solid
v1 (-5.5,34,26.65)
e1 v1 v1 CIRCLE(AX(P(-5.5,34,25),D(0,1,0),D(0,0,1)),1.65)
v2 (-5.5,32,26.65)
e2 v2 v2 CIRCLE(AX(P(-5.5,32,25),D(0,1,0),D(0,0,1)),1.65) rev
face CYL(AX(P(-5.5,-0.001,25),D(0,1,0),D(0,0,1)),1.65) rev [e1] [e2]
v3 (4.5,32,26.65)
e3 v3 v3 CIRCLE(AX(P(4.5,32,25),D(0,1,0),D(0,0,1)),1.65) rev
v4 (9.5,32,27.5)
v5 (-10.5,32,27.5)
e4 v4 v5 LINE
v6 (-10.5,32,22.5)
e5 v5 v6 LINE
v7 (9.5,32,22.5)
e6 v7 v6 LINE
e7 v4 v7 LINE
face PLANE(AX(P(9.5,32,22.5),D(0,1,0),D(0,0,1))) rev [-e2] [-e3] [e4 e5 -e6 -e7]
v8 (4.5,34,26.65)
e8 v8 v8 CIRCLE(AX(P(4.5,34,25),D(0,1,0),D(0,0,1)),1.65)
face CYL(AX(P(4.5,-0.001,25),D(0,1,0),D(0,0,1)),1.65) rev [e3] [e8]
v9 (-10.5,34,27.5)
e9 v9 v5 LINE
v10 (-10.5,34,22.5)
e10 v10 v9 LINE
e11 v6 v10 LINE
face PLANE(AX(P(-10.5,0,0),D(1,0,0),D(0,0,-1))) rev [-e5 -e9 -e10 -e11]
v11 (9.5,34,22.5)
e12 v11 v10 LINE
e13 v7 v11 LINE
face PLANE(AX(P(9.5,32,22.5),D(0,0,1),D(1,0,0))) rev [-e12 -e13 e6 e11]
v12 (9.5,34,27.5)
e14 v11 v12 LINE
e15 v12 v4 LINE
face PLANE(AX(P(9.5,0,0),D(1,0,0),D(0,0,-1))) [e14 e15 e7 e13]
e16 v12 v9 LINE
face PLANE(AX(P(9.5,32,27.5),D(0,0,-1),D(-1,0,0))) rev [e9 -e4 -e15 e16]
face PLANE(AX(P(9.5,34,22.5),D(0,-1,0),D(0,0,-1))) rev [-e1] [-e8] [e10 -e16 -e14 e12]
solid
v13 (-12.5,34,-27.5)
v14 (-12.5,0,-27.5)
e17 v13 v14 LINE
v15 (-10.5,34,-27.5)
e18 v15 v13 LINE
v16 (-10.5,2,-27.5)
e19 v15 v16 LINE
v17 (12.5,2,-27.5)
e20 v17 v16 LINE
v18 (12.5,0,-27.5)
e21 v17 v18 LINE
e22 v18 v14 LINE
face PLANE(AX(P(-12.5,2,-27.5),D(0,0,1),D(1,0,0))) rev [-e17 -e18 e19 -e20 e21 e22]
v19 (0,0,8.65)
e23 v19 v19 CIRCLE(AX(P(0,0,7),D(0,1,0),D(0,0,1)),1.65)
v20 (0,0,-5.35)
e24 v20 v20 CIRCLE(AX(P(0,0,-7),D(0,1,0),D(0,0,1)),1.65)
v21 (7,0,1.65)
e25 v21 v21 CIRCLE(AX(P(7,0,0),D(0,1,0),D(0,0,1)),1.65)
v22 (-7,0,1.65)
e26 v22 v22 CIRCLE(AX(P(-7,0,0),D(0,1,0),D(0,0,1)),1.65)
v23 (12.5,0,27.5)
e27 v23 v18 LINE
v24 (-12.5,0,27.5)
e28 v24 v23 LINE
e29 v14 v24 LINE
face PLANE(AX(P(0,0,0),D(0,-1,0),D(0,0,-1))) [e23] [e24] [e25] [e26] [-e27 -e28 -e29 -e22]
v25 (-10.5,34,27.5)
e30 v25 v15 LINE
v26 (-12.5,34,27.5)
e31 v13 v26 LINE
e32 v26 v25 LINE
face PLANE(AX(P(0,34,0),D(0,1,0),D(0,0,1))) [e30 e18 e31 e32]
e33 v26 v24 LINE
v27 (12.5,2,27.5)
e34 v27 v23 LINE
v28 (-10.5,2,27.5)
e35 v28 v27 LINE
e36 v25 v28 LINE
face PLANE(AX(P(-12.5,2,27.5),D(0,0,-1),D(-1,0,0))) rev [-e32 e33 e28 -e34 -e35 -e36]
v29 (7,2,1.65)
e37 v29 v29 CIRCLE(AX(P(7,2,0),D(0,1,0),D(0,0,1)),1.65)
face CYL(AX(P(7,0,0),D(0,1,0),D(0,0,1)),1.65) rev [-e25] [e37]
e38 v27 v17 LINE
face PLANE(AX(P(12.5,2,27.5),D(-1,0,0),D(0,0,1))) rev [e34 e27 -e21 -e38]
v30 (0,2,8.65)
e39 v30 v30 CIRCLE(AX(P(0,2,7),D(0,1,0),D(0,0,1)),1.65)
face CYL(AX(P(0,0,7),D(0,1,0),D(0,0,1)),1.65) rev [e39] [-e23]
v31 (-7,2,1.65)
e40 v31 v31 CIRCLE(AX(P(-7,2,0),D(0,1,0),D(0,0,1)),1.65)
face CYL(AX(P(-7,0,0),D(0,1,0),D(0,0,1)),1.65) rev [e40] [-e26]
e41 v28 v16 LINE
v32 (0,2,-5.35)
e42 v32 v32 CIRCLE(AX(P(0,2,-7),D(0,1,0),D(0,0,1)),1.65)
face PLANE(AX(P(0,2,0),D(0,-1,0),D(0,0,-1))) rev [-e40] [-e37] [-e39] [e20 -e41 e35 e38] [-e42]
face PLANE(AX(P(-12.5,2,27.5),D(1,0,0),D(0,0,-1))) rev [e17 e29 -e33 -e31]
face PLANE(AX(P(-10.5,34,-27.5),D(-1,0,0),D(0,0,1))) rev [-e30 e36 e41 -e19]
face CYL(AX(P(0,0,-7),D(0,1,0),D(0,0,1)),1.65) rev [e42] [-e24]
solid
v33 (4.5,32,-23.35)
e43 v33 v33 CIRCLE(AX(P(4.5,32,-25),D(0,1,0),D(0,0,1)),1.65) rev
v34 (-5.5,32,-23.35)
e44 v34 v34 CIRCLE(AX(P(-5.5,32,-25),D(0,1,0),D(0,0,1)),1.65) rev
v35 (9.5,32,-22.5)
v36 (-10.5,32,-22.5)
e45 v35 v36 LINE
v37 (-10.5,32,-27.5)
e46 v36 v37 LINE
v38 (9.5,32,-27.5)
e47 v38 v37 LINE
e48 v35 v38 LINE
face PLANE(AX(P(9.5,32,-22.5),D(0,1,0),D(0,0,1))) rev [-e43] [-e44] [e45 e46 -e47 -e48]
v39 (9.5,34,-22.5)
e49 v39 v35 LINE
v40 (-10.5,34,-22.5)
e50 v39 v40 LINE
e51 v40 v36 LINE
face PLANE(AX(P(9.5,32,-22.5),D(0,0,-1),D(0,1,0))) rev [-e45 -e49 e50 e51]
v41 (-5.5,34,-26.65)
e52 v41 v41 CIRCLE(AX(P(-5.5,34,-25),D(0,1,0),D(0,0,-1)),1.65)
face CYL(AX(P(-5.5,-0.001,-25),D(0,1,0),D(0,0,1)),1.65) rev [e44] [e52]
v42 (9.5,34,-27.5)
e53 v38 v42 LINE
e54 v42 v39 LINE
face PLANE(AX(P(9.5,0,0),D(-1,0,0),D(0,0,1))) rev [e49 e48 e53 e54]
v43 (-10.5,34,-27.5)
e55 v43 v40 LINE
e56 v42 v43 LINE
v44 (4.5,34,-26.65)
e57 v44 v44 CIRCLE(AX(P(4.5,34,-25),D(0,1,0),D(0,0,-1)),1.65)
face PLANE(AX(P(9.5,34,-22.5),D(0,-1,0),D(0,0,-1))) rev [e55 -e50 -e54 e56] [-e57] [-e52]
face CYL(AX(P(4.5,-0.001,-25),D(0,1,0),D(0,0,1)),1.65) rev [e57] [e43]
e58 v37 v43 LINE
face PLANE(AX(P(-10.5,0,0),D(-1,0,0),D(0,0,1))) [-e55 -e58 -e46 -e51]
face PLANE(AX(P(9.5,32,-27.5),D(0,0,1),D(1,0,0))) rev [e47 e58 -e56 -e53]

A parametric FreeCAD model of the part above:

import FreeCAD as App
import Part
import Sketcher

doc = App.newDocument("Part")
body = doc.addObject("PartDesign::Body", "Body")

# Sketch on XZ plane
sketch1 = body.newObject("Sketcher::SketchObject", "Sketch")
sketch1.AttachmentSupport = (doc.getObject("XZ_Plane"), [""])
sketch1.MapMode = "FlatFace"
sketch1.addGeometry([
    Part.LineSegment(App.Vector(-12, -28, 0), App.Vector(-12, 28, 0)),
    Part.LineSegment(App.Vector(-12, 28, 0), App.Vector(12, 28, 0)),
    Part.LineSegment(App.Vector(12, 28, 0), App.Vector(12, -28, 0)),
    Part.LineSegment(App.Vector(12, -28, 0), App.Vector(-12, -28, 0)),
], False)
sketch1.addConstraint([
    Sketcher.Constraint("Coincident", 0, 2, 1, 1),
    Sketcher.Constraint("Coincident", 1, 2, 2, 1),
    Sketcher.Constraint("Coincident", 2, 2, 3, 1),
    Sketcher.Constraint("Coincident", 3, 2, 0, 1),
    Sketcher.Constraint("Vertical", 0),
    Sketcher.Constraint("Horizontal", 1),
    Sketcher.Constraint("Vertical", 2),
    Sketcher.Constraint("Horizontal", 3),
    Sketcher.Constraint("Symmetric", 0, 2, 2, 2, -1, 1),
    Sketcher.Constraint("DistanceX", 1, 1, 1, 2, 25.0),
    Sketcher.Constraint("DistanceY", 0, 1, 0, 2, 55.0),
])
pad1 = body.newObject("PartDesign::Pad", "Pad")
pad1.Profile = sketch1
pad1.Length = 2
pad1.Reversed = True

# Sketch on XZ plane
sketch2 = body.newObject("Sketcher::SketchObject", "Sketch001")
sketch2.AttachmentSupport = (doc.getObject("XZ_Plane"), [""])
sketch2.MapMode = "FlatFace"
sketch2.AttachmentOffset = App.Placement(App.Vector(0, 0, -2), App.Rotation())
sketch2.addGeometry([
    Part.Circle(App.Vector(7, 0, 0), App.Vector(0, 0, 1), 1.6),
    Part.Circle(App.Vector(0, -7, 0), App.Vector(0, 0, 1), 1.6),
    Part.Circle(App.Vector(-7, 0, 0), App.Vector(0, 0, 1), 1.6),
    Part.Circle(App.Vector(0, 7, 0), App.Vector(0, 0, 1), 1.6),
], False)
sketch2.addConstraint([
    Sketcher.Constraint("Equal", 0, 1),
    Sketcher.Constraint("Equal", 1, 2),
    Sketcher.Constraint("Equal", 2, 3),
    Sketcher.Constraint("Symmetric", 0, 3, 2, 3, -1, 1),
    Sketcher.Constraint("Symmetric", 1, 3, 3, 3, -1, 1),
    Sketcher.Constraint("PointOnObject", 0, 3, -1),
    Sketcher.Constraint("PointOnObject", 1, 3, -2),
    Sketcher.Constraint("Diameter", 0, 3.3),
    Sketcher.Constraint("DistanceX", -1, 1, 0, 3, 7.0),
    Sketcher.Constraint("DistanceY", 1, 3, -1, 1, 7.0),
])
pocket1 = body.newObject("PartDesign::Pocket", "Pocket")
pocket1.Profile = sketch2
pocket1.Length = 2
pocket1.Reversed = True

# Sketch on XZ plane
sketch3 = body.newObject("Sketcher::SketchObject", "Sketch002")
sketch3.AttachmentSupport = (doc.getObject("XZ_Plane"), [""])
sketch3.MapMode = "FlatFace"
sketch3.AttachmentOffset = App.Placement(App.Vector(0, 0, -2), App.Rotation())
sketch3.addGeometry([
    Part.LineSegment(App.Vector(-12.5, -27.5, 0), App.Vector(-12.5, 27.5, 0)),
    Part.LineSegment(App.Vector(-12.5, 27.5, 0), App.Vector(-10.5, 27.5, 0)),
    Part.LineSegment(App.Vector(-10.5, 27.5, 0), App.Vector(-10.5, -27.5, 0)),
    Part.LineSegment(App.Vector(-10.5, -27.5, 0), App.Vector(-12.5, -27.5, 0)),
], False)
sketch3.addConstraint([
    Sketcher.Constraint("Coincident", 0, 2, 1, 1),
    Sketcher.Constraint("Coincident", 1, 2, 2, 1),
    Sketcher.Constraint("Coincident", 2, 2, 3, 1),
    Sketcher.Constraint("Coincident", 3, 2, 0, 1),
    Sketcher.Constraint("Vertical", 0),
    Sketcher.Constraint("Horizontal", 1),
    Sketcher.Constraint("Vertical", 2),
    Sketcher.Constraint("Horizontal", 3),
    Sketcher.Constraint("DistanceX", 1, 1, 1, 2, 2.0),
    Sketcher.Constraint("DistanceY", 0, 1, 0, 2, 55.0),
    Sketcher.Constraint("DistanceX", 0, 2, -1, 1, 12.5),
    Sketcher.Constraint("DistanceY", -1, 1, 0, 2, 27.5),
])
pad2 = body.newObject("PartDesign::Pad", "Pad001")
pad2.Profile = sketch3
pad2.Length = 32
pad2.Reversed = True
body2 = doc.addObject("PartDesign::Body", "Body001")

# Sketch on YZ plane
sketch4 = body2.newObject("Sketcher::SketchObject", "Sketch003")
sketch4.AttachmentSupport = (doc.getObject("YZ_Plane001"), [""])
sketch4.MapMode = "FlatFace"
sketch4.AttachmentOffset = App.Placement(App.Vector(0, 0, -10.5), App.Rotation())
sketch4.addGeometry([
    Part.LineSegment(App.Vector(34, -22.5, 0), App.Vector(32, -22.5, 0)),
    Part.LineSegment(App.Vector(32, -22.5, 0), App.Vector(32, -27.5, 0)),
    Part.LineSegment(App.Vector(32, -27.5, 0), App.Vector(34, -27.5, 0)),
    Part.LineSegment(App.Vector(34, -27.5, 0), App.Vector(34, -22.5, 0)),
], False)
sketch4.addConstraint([
    Sketcher.Constraint("Coincident", 0, 2, 1, 1),
    Sketcher.Constraint("Coincident", 1, 2, 2, 1),
    Sketcher.Constraint("Coincident", 2, 2, 3, 1),
    Sketcher.Constraint("Coincident", 3, 2, 0, 1),
    Sketcher.Constraint("Horizontal", 0),
    Sketcher.Constraint("Vertical", 1),
    Sketcher.Constraint("Horizontal", 2),
    Sketcher.Constraint("Vertical", 3),
    Sketcher.Constraint("DistanceX", 0, 2, 0, 1, 2.0),
    Sketcher.Constraint("DistanceY", 1, 2, 1, 1, 5.0),
    Sketcher.Constraint("DistanceX", -1, 1, 0, 2, 32.0),
    Sketcher.Constraint("DistanceY", 0, 2, -1, 1, 22.5),
])
pad3 = body2.newObject("PartDesign::Pad", "Pad002")
pad3.Profile = sketch4
pad3.Length = 20
body3 = doc.addObject("PartDesign::Body", "Body002")

# Sketch on YZ plane
sketch5 = body3.newObject("Sketcher::SketchObject", "Sketch004")
sketch5.AttachmentSupport = (doc.getObject("YZ_Plane002"), [""])
sketch5.MapMode = "FlatFace"
sketch5.AttachmentOffset = App.Placement(App.Vector(0, 0, -10.5), App.Rotation())
sketch5.addGeometry([
    Part.LineSegment(App.Vector(34, 27.5, 0), App.Vector(32, 27.5, 0)),
    Part.LineSegment(App.Vector(32, 27.5, 0), App.Vector(32, 22.5, 0)),
    Part.LineSegment(App.Vector(32, 22.5, 0), App.Vector(34, 22.5, 0)),
    Part.LineSegment(App.Vector(34, 22.5, 0), App.Vector(34, 27.5, 0)),
], False)
sketch5.addConstraint([
    Sketcher.Constraint("Coincident", 0, 2, 1, 1),
    Sketcher.Constraint("Coincident", 1, 2, 2, 1),
    Sketcher.Constraint("Coincident", 2, 2, 3, 1),
    Sketcher.Constraint("Coincident", 3, 2, 0, 1),
    Sketcher.Constraint("Horizontal", 0),
    Sketcher.Constraint("Vertical", 1),
    Sketcher.Constraint("Horizontal", 2),
    Sketcher.Constraint("Vertical", 3),
    Sketcher.Constraint("DistanceX", 0, 2, 0, 1, 2.0),
    Sketcher.Constraint("DistanceY", 1, 2, 1, 1, 5.0),
    Sketcher.Constraint("DistanceX", -1, 1, 0, 2, 32.0),
    Sketcher.Constraint("DistanceY", -1, 1, 0, 2, 27.5),
])
pad4 = body3.newObject("PartDesign::Pad", "Pad003")
pad4.Profile = sketch5
pad4.Length = 20
body4 = doc.addObject("PartDesign::Body", "Body003")
body4.AllowCompound = True

# Sketch on XZ plane
sketch6 = body4.newObject("Sketcher::SketchObject", "Sketch005")
sketch6.AttachmentSupport = (doc.getObject("XZ_Plane003"), [""])
sketch6.MapMode = "FlatFace"
sketch6.AttachmentOffset = App.Placement(App.Vector(0, 0, -34), App.Rotation())
sketch6.addGeometry([
    Part.Circle(App.Vector(-5.5, 25, 0), App.Vector(0, 0, 1), 1.6),
    Part.Circle(App.Vector(4.5, 25, 0), App.Vector(0, 0, 1), 1.6),
    Part.Circle(App.Vector(4.5, -25, 0), App.Vector(0, 0, 1), 1.6),
    Part.Circle(App.Vector(-5.5, -25, 0), App.Vector(0, 0, 1), 1.6),
], False)
sketch6.addConstraint([
    Sketcher.Constraint("Equal", 0, 1),
    Sketcher.Constraint("Equal", 1, 2),
    Sketcher.Constraint("Equal", 2, 3),
    Sketcher.Constraint("Symmetric", 1, 3, 2, 3, -1),
    Sketcher.Constraint("Symmetric", 0, 3, 3, 3, -1),
    Sketcher.Constraint("Horizontal", 0, 3, 1, 3),
    Sketcher.Constraint("Diameter", 0, 3.3),
    Sketcher.Constraint("DistanceY", -1, 1, 0, 3, 25.0),
    Sketcher.Constraint("DistanceX", 0, 3, 1, 3, 10.0),
    Sketcher.Constraint("DistanceX", 0, 3, -1, 1, 5.5),
])
pad5 = body4.newObject("PartDesign::Pad", "Pad004")
pad5.Profile = sketch6
pad5.Length = 2
doc.recompute()

body5 = doc.addObject("PartDesign::Body", "Body004")
body5.BaseFeature = body4
boolean = body2.newObject("PartDesign::Boolean", "Boolean")
boolean.Type = "Cut"
boolean.addObjects([body5])
doc.recompute()

boolean2 = body3.newObject("PartDesign::Boolean", "Boolean001")
boolean2.Type = "Cut"
boolean2.addObjects([body4])

doc.recompute()
